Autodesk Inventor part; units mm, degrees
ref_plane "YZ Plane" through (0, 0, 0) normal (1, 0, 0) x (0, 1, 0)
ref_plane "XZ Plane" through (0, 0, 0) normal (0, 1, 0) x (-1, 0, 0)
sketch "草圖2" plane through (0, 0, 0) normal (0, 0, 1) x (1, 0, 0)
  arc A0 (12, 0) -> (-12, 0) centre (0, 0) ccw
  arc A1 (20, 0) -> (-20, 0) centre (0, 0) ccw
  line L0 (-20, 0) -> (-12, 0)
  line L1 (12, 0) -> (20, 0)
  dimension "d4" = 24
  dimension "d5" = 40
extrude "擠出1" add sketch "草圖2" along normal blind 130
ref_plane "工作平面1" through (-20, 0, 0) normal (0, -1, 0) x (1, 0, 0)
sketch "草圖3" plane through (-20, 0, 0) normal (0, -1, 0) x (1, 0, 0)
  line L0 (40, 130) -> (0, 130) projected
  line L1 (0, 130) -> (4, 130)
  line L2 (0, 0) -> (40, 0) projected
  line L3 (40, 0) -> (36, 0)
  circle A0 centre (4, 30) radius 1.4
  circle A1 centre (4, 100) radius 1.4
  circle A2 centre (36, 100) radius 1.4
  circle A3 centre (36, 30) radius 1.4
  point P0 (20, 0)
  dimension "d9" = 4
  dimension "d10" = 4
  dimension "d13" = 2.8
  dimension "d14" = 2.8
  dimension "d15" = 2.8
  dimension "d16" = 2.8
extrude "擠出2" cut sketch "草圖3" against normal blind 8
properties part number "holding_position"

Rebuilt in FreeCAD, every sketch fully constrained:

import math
import FreeCAD as App
import Part
import Sketcher

V = App.Vector
Q = App.Units.Quantity

doc = App.newDocument("Part")
params = doc.addObject("Spreadsheet::Sheet", "Params")
for row, (alias, value) in enumerate([
    ("sketch1_radius", "12 mm"),
    ("sketch1_radius2", "20 mm"),
    ("pad1_length", "130 mm"),
    ("sketch2_diameter", "2.8 mm"),
    ("pocket1_length", "8 mm"),
], start=1):
    params.set(f"A{row}", alias)
    params.set(f"B{row}", "=" + value)
    params.setAlias(f"B{row}", alias)

body = doc.addObject("PartDesign::Body", "Body")

sketch1 = body.newObject("Sketcher::SketchObject", "Sketch")
sketch1.AttachmentSupport = (doc.getObject("XY_Plane"), [""])
sketch1.MapMode = "FlatFace"
sketch1.addGeometry([
    Part.ArcOfCircle(Part.Circle(V(0, 0, 0), V(0, 0, 1), 12), math.radians(0), math.radians(180)),
    Part.LineSegment(V(12, 0, 0), V(20, 0, 0)),
    Part.ArcOfCircle(Part.Circle(V(0, 0, 0), V(0, 0, 1), 20), math.radians(0), math.radians(180)),
    Part.LineSegment(V(-20, 0, 0), V(-12, 0, 0)),
], False)
sketch1.addConstraint([
    Sketcher.Constraint("Coincident", 0, 1, 1, 1),
    Sketcher.Constraint("Coincident", 1, 2, 2, 1),
    Sketcher.Constraint("Coincident", 2, 2, 3, 1),
    Sketcher.Constraint("Coincident", 3, 2, 0, 2),
    Sketcher.Constraint("Horizontal", 1),
    Sketcher.Constraint("Horizontal", 3),
    Sketcher.Constraint("Coincident", 0, 3, -1, 1),
    Sketcher.Constraint("Coincident", 2, 3, -1, 1),
    Sketcher.Constraint("PointOnObject", 0, 1, -1),
    Sketcher.Constraint("PointOnObject", 2, 2, -1),
    Sketcher.Constraint("Radius", 0, Q("12 mm")),
    Sketcher.Constraint("Radius", 2, Q("20 mm")),
])
sketch1.setExpression("Constraints[10]", "Params.sketch1_radius")
sketch1.setExpression("Constraints[11]", "Params.sketch1_radius2")
pad1 = body.newObject("PartDesign::Pad", "Pad")
pad1.Profile = sketch1
pad1.setExpression("Length", "Params.pad1_length")

sketch2 = body.newObject("Sketcher::SketchObject", "Sketch001")
sketch2.AttachmentSupport = (doc.getObject("XZ_Plane"), [""])
sketch2.MapMode = "FlatFace"
sketch2.addGeometry([
    Part.Circle(V(-16, 30, 0), V(0, 0, 1), 1.4),
    Part.Circle(V(-16, 100, 0), V(0, 0, 1), 1.4),
    Part.Circle(V(16, 100, 0), V(0, 0, 1), 1.4),
    Part.Circle(V(16, 30, 0), V(0, 0, 1), 1.4),
], False)
sketch2.addConstraint([
    Sketcher.Constraint("Equal", 0, 1),
    Sketcher.Constraint("Equal", 1, 2),
    Sketcher.Constraint("Equal", 2, 3),
    Sketcher.Constraint("Symmetric", 1, 3, 2, 3, -2),
    Sketcher.Constraint("Symmetric", 0, 3, 3, 3, -2),
    Sketcher.Constraint("Vertical", 0, 3, 1, 3),
    Sketcher.Constraint("Diameter", 0, Q("2.8 mm")),
    Sketcher.Constraint("DistanceX", 0, 3, -1, 1, Q("16 mm")),
    Sketcher.Constraint("DistanceY", -1, 1, 0, 3, Q("30 mm")),
    Sketcher.Constraint("DistanceY", -1, 1, 1, 3, Q("100 mm")),
])
sketch2.setExpression("Constraints[6]", "Params.sketch2_diameter")
pocket1 = body.newObject("PartDesign::Pocket", "Pocket")
pocket1.Profile = sketch2
pocket1.setExpression("Length", "Params.pocket1_length")

doc.recompute()
